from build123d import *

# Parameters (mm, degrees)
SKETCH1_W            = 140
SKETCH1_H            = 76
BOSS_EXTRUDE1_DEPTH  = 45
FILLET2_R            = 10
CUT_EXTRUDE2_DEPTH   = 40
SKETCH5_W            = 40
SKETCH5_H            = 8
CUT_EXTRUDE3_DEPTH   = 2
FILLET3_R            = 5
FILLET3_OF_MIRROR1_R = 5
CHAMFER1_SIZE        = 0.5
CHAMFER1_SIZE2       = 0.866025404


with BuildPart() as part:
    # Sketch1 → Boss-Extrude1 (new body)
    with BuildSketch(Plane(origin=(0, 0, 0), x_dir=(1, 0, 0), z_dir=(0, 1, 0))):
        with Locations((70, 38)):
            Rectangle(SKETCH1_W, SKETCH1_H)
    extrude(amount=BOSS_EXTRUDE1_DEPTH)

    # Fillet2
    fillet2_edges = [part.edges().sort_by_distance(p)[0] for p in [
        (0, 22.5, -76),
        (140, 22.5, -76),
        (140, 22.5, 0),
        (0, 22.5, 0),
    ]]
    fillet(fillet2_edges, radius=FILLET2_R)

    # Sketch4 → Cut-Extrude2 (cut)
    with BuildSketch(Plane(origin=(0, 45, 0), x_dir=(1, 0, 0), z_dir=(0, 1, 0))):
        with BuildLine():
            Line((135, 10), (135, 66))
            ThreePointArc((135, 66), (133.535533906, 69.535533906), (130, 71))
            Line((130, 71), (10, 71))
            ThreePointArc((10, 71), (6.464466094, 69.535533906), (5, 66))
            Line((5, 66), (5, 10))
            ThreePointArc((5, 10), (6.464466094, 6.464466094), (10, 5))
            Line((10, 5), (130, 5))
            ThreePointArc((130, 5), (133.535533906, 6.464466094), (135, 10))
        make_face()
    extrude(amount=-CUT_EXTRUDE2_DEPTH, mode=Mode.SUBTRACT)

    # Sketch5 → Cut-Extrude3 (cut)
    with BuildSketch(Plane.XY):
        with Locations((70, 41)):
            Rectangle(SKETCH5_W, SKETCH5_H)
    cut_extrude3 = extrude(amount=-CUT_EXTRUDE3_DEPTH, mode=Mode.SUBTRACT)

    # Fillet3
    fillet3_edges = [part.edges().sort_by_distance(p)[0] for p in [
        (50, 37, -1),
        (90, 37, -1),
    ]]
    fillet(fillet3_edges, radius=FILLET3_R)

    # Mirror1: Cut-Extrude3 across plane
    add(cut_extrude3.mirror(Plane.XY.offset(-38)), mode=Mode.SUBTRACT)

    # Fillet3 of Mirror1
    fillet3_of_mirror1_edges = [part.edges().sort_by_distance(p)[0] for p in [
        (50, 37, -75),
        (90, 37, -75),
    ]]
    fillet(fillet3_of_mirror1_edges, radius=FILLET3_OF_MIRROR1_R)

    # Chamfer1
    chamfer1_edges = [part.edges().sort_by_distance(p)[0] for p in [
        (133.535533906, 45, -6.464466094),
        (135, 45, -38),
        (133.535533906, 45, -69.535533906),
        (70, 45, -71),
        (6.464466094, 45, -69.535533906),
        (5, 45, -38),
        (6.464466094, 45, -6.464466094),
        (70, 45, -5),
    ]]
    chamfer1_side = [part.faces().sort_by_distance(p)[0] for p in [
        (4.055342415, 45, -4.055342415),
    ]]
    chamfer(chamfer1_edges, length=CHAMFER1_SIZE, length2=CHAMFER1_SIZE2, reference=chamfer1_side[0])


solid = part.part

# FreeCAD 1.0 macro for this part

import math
import FreeCAD as App
import Part
import Sketcher
from FreeCAD import Vector


def edges_at(feature, points):
    """Names of the edges that pass closest to the given points."""
    edges = feature.Shape.Edges
    near = lambda p: min(range(len(edges)), key=lambda i: edges[i].distToShape(Part.Vertex(*p))[0])
    return sorted({f"Edge{near(p) + 1}" for p in points})


def add_polygon(sketch, points):
    """Adds a closed chain of lines whose ends are joined by coincident constraints."""
    first, n = sketch.GeometryCount, len(points)
    for a, b in zip(points, points[1:] + points[:1]):
        sketch.addGeometry(Part.LineSegment(App.Vector(*a, 0), App.Vector(*b, 0)), False)
    for i in range(n):
        sketch.addConstraint(Sketcher.Constraint("Coincident", first + i, 2, first + (i + 1) % n, 1))

doc = App.newDocument("Part")
params = doc.addObject("Spreadsheet::Sheet", "Params")
for row, (alias, value) in enumerate([
    ("sketch1_width", "140 mm"),
    ("sketch1_height", "76 mm"),
    ("pad1_length", "45 mm"),
    ("fillet_radius", "10 mm"),
    ("sketch2_radius", "5 mm"),
    ("sketch2_width", "120 mm"),
    ("sketch2_height", "56 mm"),
    ("pocket1_length", "40 mm"),
    ("sketch3_width", "40 mm"),
    ("sketch3_height", "8 mm"),
    ("pocket2_length", "2 mm"),
    ("fillet2_radius", "5 mm"),
    ("fillet3_radius", "5 mm"),
    ("chamfer_size", "0.5 mm"),
    ("chamfer_size2", "0.866025 mm"),
], start=1):
    params.set(f"A{row}", alias)
    params.set(f"B{row}", "=" + value)
    params.setAlias(f"B{row}", alias)

body = doc.addObject("PartDesign::Body", "Body")

sketch1 = body.newObject("Sketcher::SketchObject", "Sketch")
sketch1.AttachmentSupport = (doc.getObject("XZ_Plane"), [""])
sketch1.MapMode = "FlatFace"
add_polygon(sketch1, [(0, -76), (0, 0), (140, 0), (140, -76)])
sketch1.addConstraint(Sketcher.Constraint("Vertical", 0))
sketch1.addConstraint(Sketcher.Constraint("Horizontal", 1))
sketch1.addConstraint(Sketcher.Constraint("Vertical", 2))
sketch1.addConstraint(Sketcher.Constraint("Horizontal", 3))
sketch1.addConstraint(Sketcher.Constraint("Coincident", 0, 2, -1, 1))
sketch1.addConstraint(Sketcher.Constraint("DistanceX", 1, 1, 1, 2, 140.0))
sketch1.addConstraint(Sketcher.Constraint("DistanceY", 0, 1, 0, 2, 76.0))
sketch1.setExpression("Constraints[9]", "Params.sketch1_width")
sketch1.setExpression("Constraints[10]", "Params.sketch1_height")
pad1 = body.newObject("PartDesign::Pad", "Pad")
pad1.Profile = sketch1
pad1.setExpression("Length", "Params.pad1_length")
pad1.Reversed = True
doc.recompute()

fillet = body.newObject("PartDesign::Fillet", "Fillet")
fillet.Base = (pad1, edges_at(pad1, [
    (0, 22.5, -76),
    (140, 22.5, -76),
    (140, 22.5, 0),
    (0, 22.5, 0),
]))
fillet.setExpression("Radius", "Params.fillet_radius")

sketch2 = body.newObject("Sketcher::SketchObject", "Sketch001")
sketch2.AttachmentSupport = (doc.getObject("XZ_Plane"), [""])
sketch2.MapMode = "FlatFace"
sketch2.AttachmentOffset = App.Placement(Vector(0, 0, -45), App.Rotation())
sketch2.addGeometry(Part.LineSegment(Vector(135, -10, 0), Vector(135, -66, 0)), False)
sketch2.addGeometry(Part.ArcOfCircle(Part.Circle(Vector(130, -66, 0), Vector(0, 0, 1), 5), math.radians(-90), math.radians(0)), False)
sketch2.addGeometry(Part.LineSegment(Vector(130, -71, 0), Vector(10, -71, 0)), False)
sketch2.addGeometry(Part.ArcOfCircle(Part.Circle(Vector(10, -66, 0), Vector(0, 0, 1), 5), math.radians(180), math.radians(270)), False)
sketch2.addGeometry(Part.LineSegment(Vector(5, -66, 0), Vector(5, -10, 0)), False)
sketch2.addGeometry(Part.ArcOfCircle(Part.Circle(Vector(10, -10, 0), Vector(0, 0, 1), 5), math.radians(90), math.radians(180)), False)
sketch2.addGeometry(Part.LineSegment(Vector(10, -5, 0), Vector(130, -5, 0)), False)
sketch2.addGeometry(Part.ArcOfCircle(Part.Circle(Vector(130, -10, 0), Vector(0, 0, 1), 5), math.radians(0), math.radians(90)), False)
sketch2.addConstraint(Sketcher.Constraint("Tangent", 0, 2, 1, 2))
sketch2.addConstraint(Sketcher.Constraint("Tangent", 1, 1, 2, 1))
sketch2.addConstraint(Sketcher.Constraint("Tangent", 2, 2, 3, 2))
sketch2.addConstraint(Sketcher.Constraint("Tangent", 3, 1, 4, 1))
sketch2.addConstraint(Sketcher.Constraint("Tangent", 4, 2, 5, 2))
sketch2.addConstraint(Sketcher.Constraint("Tangent", 5, 1, 6, 1))
sketch2.addConstraint(Sketcher.Constraint("Tangent", 6, 2, 7, 2))
sketch2.addConstraint(Sketcher.Constraint("Tangent", 7, 1, 0, 1))
sketch2.addConstraint(Sketcher.Constraint("Vertical", 0))
sketch2.addConstraint(Sketcher.Constraint("Horizontal", 2))
sketch2.addConstraint(Sketcher.Constraint("Vertical", 4))
sketch2.addConstraint(Sketcher.Constraint("Horizontal", 6))
sketch2.addConstraint(Sketcher.Constraint("Equal", 1, 3))
sketch2.addConstraint(Sketcher.Constraint("Equal", 3, 5))
sketch2.addConstraint(Sketcher.Constraint("Equal", 5, 7))
sketch2.addConstraint(Sketcher.Constraint("Radius", 1, 5.0))
sketch2.addConstraint(Sketcher.Constraint("DistanceX", 2, 2, 2, 1, 120.0))
sketch2.addConstraint(Sketcher.Constraint("DistanceY", 0, 2, 0, 1, 56.0))
sketch2.addConstraint(Sketcher.Constraint("DistanceX", -1, 1, 1, 3, 130.0))
sketch2.addConstraint(Sketcher.Constraint("DistanceY", 1, 3, -1, 1, 66.0))
sketch2.setExpression("Constraints[15]", "Params.sketch2_radius")
sketch2.setExpression("Constraints[16]", "Params.sketch2_width")
sketch2.setExpression("Constraints[17]", "Params.sketch2_height")
pocket1 = body.newObject("PartDesign::Pocket", "Pocket")
pocket1.Profile = sketch2
pocket1.setExpression("Length", "Params.pocket1_length")
pocket1.Reversed = True

sketch3 = body.newObject("Sketcher::SketchObject", "Sketch002")
sketch3.AttachmentSupport = (doc.getObject("XY_Plane"), [""])
sketch3.MapMode = "FlatFace"
add_polygon(sketch3, [(50, 45), (50, 37), (90, 37), (90, 45)])
sketch3.addConstraint(Sketcher.Constraint("Vertical", 0))
sketch3.addConstraint(Sketcher.Constraint("Horizontal", 1))
sketch3.addConstraint(Sketcher.Constraint("Vertical", 2))
sketch3.addConstraint(Sketcher.Constraint("Horizontal", 3))
sketch3.addConstraint(Sketcher.Constraint("DistanceX", 1, 1, 1, 2, 40.0))
sketch3.addConstraint(Sketcher.Constraint("DistanceY", 0, 2, 0, 1, 8.0))
sketch3.addConstraint(Sketcher.Constraint("DistanceX", -1, 1, 0, 2, 50.0))
sketch3.addConstraint(Sketcher.Constraint("DistanceY", -1, 1, 0, 2, 37.0))
sketch3.setExpression("Constraints[8]", "Params.sketch3_width")
sketch3.setExpression("Constraints[9]", "Params.sketch3_height")
pocket2 = body.newObject("PartDesign::Pocket", "Pocket001")
pocket2.Profile = sketch3
pocket2.setExpression("Length", "Params.pocket2_length")
doc.recompute()

fillet2 = body.newObject("PartDesign::Fillet", "Fillet001")
fillet2.Base = (pocket2, edges_at(pocket2, [(50, 37, -1), (90, 37, -1)]))
fillet2.setExpression("Radius", "Params.fillet2_radius")
doc.recompute()

datumplane = body.newObject("PartDesign::Plane", "DatumPlane")
datumplane.AttachmentSupport = (doc.getObject("XY_Plane"), [""])
datumplane.MapMode = "FlatFace"
datumplane.AttachmentOffset = App.Placement(Vector(0, 0, -38), App.Rotation())
mirrored = body.newObject("PartDesign::Mirrored", "Mirrored")
mirrored.Originals = [pocket2]
mirrored.MirrorPlane = (datumplane, [""])
body.Tip = mirrored
doc.recompute()

fillet3 = body.newObject("PartDesign::Fillet", "Fillet002")
fillet3.Base = (mirrored, edges_at(mirrored, [(50, 37, -75), (90, 37, -75)]))
fillet3.setExpression("Radius", "Params.fillet3_radius")
doc.recompute()

chamfer = body.newObject("PartDesign::Chamfer", "Chamfer")
chamfer.Base = (fillet3, edges_at(fillet3, [
    (133.536, 45, -6.464),
    (135, 45, -38),
    (133.536, 45, -69.536),
    (70, 45, -71),
    (6.464, 45, -69.536),
    (5, 45, -38),
    (6.464, 45, -6.464),
    (70, 45, -5),
]))
chamfer.ChamferType = "Two distances"
chamfer.setExpression("Size", "Params.chamfer_size")
chamfer.setExpression("Size2", "Params.chamfer_size2")

doc.recompute()
